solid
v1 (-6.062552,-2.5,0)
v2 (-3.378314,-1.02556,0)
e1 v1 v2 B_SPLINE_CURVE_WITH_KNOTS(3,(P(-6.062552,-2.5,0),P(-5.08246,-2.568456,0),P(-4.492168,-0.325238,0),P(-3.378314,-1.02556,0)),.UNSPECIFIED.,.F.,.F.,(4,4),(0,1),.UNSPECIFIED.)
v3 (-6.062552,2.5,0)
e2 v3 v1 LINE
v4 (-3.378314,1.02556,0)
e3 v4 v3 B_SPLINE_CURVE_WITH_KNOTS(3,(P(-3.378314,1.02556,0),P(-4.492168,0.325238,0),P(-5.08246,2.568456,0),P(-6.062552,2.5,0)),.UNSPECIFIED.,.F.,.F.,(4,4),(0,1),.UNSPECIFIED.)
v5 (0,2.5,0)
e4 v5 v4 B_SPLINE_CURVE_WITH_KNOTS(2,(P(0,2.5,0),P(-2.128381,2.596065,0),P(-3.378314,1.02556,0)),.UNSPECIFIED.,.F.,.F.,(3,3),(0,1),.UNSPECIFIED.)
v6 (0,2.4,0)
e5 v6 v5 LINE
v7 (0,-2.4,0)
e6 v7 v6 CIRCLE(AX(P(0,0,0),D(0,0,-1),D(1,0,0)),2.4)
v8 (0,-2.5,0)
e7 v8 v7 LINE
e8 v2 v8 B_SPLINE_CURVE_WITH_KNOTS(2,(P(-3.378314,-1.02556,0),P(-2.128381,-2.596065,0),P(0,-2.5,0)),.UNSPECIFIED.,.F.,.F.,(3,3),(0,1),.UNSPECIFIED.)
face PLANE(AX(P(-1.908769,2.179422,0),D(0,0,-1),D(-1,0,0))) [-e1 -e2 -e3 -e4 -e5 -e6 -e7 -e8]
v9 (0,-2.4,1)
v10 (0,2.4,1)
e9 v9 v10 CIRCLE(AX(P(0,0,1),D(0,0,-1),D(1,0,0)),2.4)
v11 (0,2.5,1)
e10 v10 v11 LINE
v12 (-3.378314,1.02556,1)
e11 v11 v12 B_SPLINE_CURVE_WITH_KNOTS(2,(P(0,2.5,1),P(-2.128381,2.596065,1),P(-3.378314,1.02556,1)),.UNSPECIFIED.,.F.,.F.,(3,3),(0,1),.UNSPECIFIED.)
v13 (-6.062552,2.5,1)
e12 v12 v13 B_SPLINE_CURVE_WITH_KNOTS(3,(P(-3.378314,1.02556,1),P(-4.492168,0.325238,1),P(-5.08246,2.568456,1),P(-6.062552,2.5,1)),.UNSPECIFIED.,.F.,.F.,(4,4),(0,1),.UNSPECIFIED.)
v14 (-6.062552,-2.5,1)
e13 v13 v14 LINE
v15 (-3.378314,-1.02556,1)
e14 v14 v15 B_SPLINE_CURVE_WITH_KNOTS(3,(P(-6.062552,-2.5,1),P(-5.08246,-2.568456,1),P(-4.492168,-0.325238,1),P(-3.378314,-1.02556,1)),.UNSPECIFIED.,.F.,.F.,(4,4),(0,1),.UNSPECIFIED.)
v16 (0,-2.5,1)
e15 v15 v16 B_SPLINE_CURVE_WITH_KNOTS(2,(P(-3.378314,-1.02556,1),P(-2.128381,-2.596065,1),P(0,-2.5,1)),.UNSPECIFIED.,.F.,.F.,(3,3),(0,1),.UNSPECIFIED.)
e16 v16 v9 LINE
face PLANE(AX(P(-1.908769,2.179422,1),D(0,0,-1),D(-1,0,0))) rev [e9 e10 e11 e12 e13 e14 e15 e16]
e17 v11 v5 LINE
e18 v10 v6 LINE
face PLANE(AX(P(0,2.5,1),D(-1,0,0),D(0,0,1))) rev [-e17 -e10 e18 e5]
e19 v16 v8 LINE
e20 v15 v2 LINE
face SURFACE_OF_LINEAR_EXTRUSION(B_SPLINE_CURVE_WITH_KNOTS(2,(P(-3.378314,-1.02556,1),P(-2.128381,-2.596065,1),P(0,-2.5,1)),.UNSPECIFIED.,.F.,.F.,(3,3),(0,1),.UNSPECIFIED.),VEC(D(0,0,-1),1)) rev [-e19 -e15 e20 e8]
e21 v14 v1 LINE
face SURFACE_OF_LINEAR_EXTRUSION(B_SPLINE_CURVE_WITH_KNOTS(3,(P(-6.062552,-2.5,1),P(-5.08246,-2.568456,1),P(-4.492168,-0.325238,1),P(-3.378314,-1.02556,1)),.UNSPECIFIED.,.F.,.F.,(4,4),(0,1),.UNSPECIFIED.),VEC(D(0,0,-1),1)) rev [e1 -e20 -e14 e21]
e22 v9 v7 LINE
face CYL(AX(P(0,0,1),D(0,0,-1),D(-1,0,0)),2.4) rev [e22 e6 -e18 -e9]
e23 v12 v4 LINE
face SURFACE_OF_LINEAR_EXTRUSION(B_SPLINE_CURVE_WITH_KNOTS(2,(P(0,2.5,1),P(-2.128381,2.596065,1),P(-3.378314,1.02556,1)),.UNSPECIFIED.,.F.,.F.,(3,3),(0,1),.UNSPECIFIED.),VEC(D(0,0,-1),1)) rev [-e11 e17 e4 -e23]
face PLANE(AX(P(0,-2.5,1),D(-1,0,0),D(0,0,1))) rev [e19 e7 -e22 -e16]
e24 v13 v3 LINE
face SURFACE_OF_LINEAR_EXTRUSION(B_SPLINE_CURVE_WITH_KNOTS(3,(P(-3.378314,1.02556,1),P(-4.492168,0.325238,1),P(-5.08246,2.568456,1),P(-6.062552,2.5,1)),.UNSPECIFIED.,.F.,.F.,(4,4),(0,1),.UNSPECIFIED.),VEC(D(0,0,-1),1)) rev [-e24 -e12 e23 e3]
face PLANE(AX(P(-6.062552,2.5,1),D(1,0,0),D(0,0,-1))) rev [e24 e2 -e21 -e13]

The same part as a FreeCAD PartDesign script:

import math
import FreeCAD as App
import Part
import Sketcher
Q = App.Units.Quantity

doc = App.newDocument("Part")
body = doc.addObject("PartDesign::Body", "Body")

# Sketch on XY plane
sketch1 = body.newObject("Sketcher::SketchObject", "Sketch")
sketch1.AttachmentSupport = (doc.getObject("XY_Plane"), [""])
sketch1.MapMode = "FlatFace"
sketch1.addGeometry([
    Part.LineSegment(App.Vector(-6.062552, 2.5, 0), App.Vector(-6.062552, -2.5, 0)),  # 0
    Part.BSplineCurve([App.Vector(-3.378314, -1.02556, 0), App.Vector(-4.492168, -0.325238, 0), App.Vector(-5.08246, -2.568456, 0), App.Vector(-6.062552, -2.5, 0)], [4, 4], [0, 1], False, 3, [1, 1, 1, 1], False),  # 1
    Part.BSplineCurve([App.Vector(0, -2.5, 0), App.Vector(-2.128381, -2.596065, 0), App.Vector(-3.378314, -1.02556, 0)], [3, 3], [0, 1], False, 2, [1, 1, 1], False),  # 2
    Part.LineSegment(App.Vector(0, -2.5, 0), App.Vector(0, -2.4, 0)),  # 3
    Part.ArcOfCircle(Part.Circle(App.Vector(0, 0, 0), App.Vector(0, 0, 1), 2.4), math.radians(90), math.radians(270)),  # 4
    Part.LineSegment(App.Vector(0, 2.4, 0), App.Vector(0, 2.5, 0)),  # 5
    Part.BSplineCurve([App.Vector(0, 2.5, 0), App.Vector(-2.128381, 2.596065, 0), App.Vector(-3.378314, 1.02556, 0)], [3, 3], [0, 1], False, 2, [1, 1, 1], False),  # 6
    Part.BSplineCurve([App.Vector(-3.378314, 1.02556, 0), App.Vector(-4.492168, 0.325238, 0), App.Vector(-5.08246, 2.568456, 0), App.Vector(-6.062552, 2.5, 0)], [4, 4], [0, 1], False, 3, [1, 1, 1, 1], False),  # 7
], False)
sketch1.addConstraint([
    Sketcher.Constraint("Block", 1),
    Sketcher.Constraint("Block", 2),
    Sketcher.Constraint("Block", 6),
    Sketcher.Constraint("Block", 7),
    Sketcher.Constraint("Coincident", 0, 2, 1, 2),
    Sketcher.Constraint("Coincident", 2, 1, 3, 1),
    Sketcher.Constraint("Coincident", 3, 2, 4, 2),
    Sketcher.Constraint("Coincident", 4, 1, 5, 1),
    Sketcher.Constraint("Coincident", 5, 2, 6, 1),
    Sketcher.Constraint("Coincident", 7, 2, 0, 1),
    Sketcher.Constraint("Vertical", 3),
    Sketcher.Constraint("Vertical", 5),
    Sketcher.Constraint("Coincident", 4, 3, -1, 1),
    Sketcher.Constraint("Radius", 4, Q("2.4 mm")),
])
pad1 = body.newObject("PartDesign::Pad", "Pad")
pad1.Profile = sketch1
pad1.Length = 1

doc.recompute()
